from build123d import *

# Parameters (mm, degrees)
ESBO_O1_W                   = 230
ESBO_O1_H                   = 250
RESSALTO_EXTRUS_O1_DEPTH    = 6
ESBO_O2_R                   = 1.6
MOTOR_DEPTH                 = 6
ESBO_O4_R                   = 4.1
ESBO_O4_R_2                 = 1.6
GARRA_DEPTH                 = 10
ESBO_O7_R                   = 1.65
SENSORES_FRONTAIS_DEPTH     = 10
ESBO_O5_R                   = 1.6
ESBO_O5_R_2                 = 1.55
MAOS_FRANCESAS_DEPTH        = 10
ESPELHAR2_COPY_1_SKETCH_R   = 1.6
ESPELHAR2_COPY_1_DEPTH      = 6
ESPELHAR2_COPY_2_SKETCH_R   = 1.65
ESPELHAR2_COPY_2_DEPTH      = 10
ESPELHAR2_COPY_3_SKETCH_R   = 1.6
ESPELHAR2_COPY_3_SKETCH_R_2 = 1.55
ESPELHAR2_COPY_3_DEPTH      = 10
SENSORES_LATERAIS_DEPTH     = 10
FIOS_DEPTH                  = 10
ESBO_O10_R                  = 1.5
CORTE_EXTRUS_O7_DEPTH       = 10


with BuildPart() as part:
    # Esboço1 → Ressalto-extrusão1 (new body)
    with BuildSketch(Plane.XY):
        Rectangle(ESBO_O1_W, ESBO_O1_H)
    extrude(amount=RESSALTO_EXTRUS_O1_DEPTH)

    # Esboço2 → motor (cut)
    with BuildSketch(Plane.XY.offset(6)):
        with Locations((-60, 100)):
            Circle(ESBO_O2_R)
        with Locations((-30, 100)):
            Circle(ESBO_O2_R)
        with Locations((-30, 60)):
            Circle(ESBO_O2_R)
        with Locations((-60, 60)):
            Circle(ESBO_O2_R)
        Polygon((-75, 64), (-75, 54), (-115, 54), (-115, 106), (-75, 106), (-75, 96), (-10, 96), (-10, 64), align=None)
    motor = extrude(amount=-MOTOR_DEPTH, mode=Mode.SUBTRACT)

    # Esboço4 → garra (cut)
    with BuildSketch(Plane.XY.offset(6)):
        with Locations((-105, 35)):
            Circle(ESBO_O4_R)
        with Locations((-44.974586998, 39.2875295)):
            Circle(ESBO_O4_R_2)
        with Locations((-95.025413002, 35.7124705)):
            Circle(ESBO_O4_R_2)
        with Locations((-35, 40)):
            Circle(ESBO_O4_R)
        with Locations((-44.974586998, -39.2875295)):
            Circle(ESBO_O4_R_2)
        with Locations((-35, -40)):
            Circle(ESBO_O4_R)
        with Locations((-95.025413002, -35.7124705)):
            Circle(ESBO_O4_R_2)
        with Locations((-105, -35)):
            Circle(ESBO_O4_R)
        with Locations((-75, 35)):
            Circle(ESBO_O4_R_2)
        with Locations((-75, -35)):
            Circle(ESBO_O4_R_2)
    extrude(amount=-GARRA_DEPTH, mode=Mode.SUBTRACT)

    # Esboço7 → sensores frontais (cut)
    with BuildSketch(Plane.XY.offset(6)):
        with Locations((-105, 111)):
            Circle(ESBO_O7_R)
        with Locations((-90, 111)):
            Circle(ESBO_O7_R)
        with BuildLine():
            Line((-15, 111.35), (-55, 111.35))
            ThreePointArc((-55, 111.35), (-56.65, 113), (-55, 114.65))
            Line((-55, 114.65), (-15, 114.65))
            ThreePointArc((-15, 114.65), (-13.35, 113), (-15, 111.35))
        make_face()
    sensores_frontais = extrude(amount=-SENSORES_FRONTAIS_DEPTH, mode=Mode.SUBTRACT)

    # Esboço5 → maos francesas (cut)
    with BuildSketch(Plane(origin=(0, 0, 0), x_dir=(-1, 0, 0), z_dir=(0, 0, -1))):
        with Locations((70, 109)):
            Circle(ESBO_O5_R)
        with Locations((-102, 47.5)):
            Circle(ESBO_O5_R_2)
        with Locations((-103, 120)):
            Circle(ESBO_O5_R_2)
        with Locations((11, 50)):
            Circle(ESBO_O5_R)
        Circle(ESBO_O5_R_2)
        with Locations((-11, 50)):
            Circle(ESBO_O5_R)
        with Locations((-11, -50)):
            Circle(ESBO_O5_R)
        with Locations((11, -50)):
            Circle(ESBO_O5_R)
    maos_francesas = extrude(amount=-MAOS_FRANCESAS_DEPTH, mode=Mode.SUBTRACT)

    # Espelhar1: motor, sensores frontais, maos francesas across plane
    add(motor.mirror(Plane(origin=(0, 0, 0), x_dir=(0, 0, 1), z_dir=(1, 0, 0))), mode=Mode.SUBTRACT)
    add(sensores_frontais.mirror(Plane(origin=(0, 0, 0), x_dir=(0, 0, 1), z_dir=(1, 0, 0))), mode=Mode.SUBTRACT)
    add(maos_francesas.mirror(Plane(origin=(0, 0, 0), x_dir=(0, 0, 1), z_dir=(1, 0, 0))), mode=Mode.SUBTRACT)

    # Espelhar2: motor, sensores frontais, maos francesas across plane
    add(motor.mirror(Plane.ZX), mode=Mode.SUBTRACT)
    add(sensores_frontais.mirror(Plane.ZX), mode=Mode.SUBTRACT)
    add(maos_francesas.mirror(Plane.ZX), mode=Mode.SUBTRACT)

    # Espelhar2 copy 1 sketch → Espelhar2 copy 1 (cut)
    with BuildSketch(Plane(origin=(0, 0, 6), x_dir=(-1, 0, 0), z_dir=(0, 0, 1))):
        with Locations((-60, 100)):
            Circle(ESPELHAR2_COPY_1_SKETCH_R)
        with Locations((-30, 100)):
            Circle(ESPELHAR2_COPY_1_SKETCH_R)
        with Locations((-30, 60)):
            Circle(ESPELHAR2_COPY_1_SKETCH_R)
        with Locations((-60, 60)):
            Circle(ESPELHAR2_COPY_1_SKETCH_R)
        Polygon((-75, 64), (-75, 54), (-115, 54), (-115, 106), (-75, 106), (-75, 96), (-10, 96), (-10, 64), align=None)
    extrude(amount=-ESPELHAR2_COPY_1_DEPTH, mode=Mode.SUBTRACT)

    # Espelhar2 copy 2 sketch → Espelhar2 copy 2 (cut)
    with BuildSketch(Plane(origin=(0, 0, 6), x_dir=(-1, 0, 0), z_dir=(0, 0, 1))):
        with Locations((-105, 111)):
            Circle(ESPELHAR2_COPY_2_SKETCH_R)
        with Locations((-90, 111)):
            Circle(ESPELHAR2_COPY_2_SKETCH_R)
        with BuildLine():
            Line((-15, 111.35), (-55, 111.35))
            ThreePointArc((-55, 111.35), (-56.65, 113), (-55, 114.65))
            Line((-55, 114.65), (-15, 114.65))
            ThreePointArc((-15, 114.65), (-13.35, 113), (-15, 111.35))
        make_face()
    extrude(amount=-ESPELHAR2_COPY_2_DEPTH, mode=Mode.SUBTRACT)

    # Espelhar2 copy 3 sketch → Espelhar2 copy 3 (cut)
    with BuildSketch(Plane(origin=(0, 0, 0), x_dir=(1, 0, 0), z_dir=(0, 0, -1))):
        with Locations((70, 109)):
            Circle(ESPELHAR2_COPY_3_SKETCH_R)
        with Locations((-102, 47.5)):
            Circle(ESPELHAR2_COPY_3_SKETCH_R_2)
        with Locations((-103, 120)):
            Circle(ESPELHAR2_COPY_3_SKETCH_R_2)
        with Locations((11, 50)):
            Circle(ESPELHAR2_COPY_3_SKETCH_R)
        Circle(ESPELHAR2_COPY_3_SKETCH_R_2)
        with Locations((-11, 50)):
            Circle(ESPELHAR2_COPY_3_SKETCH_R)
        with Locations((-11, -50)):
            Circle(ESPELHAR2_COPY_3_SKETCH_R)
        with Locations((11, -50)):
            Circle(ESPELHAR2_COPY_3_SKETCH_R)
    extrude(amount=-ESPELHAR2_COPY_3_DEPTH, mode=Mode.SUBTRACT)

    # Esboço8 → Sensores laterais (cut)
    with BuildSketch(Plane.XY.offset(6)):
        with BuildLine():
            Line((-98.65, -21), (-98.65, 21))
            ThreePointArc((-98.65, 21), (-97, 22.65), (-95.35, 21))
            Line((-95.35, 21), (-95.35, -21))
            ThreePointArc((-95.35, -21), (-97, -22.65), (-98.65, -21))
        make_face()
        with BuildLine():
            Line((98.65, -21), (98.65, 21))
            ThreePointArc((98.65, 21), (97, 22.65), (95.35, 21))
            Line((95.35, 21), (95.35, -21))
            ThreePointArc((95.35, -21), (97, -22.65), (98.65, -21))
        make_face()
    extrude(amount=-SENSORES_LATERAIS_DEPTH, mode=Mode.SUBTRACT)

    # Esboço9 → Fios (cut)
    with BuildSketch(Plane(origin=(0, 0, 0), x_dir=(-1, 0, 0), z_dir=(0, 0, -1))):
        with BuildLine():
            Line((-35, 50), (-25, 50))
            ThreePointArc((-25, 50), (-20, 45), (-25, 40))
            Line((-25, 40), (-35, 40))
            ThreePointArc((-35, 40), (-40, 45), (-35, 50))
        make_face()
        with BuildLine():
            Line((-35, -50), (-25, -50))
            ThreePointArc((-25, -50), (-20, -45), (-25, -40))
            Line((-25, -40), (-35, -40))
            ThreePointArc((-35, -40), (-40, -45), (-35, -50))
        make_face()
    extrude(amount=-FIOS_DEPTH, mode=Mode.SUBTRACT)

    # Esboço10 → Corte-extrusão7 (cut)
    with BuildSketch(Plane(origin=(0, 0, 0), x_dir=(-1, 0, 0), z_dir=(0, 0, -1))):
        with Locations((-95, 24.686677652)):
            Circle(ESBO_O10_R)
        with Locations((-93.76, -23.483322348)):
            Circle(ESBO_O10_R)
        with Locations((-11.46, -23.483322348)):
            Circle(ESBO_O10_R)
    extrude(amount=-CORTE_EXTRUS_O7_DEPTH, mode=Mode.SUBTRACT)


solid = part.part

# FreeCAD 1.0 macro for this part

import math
import FreeCAD as App
import Part
import Sketcher
Q = App.Units.Quantity

doc = App.newDocument("Part")
body = doc.addObject("PartDesign::Body", "Body")

# Sketch on XY plane
sketch1 = body.newObject("Sketcher::SketchObject", "Sketch")
sketch1.AttachmentSupport = (doc.getObject("XY_Plane"), [""])
sketch1.MapMode = "FlatFace"
sketch1.addGeometry(Part.LineSegment(App.Vector(-115, 125, 0), App.Vector(-115, -125, 0)), False)
sketch1.addGeometry(Part.LineSegment(App.Vector(-115, -125, 0), App.Vector(115, -125, 0)), False)
sketch1.addGeometry(Part.LineSegment(App.Vector(115, -125, 0), App.Vector(115, 125, 0)), False)
sketch1.addGeometry(Part.LineSegment(App.Vector(115, 125, 0), App.Vector(-115, 125, 0)), False)
sketch1.addConstraint(Sketcher.Constraint("Coincident", 0, 2, 1, 1))
sketch1.addConstraint(Sketcher.Constraint("Coincident", 1, 2, 2, 1))
sketch1.addConstraint(Sketcher.Constraint("Coincident", 2, 2, 3, 1))
sketch1.addConstraint(Sketcher.Constraint("Coincident", 3, 2, 0, 1))
sketch1.addConstraint(Sketcher.Constraint("Vertical", 0))
sketch1.addConstraint(Sketcher.Constraint("Horizontal", 1))
sketch1.addConstraint(Sketcher.Constraint("Vertical", 2))
sketch1.addConstraint(Sketcher.Constraint("Horizontal", 3))
sketch1.addConstraint(Sketcher.Constraint("Symmetric", 0, 2, 2, 2, -1, 1))
sketch1.addConstraint(Sketcher.Constraint("DistanceX", 1, 1, 1, 2, Q("230 mm")))
sketch1.addConstraint(Sketcher.Constraint("DistanceY", 0, 2, 0, 1, Q("250 mm")))
pad1 = body.newObject("PartDesign::Pad", "Pad")
pad1.Profile = sketch1
pad1.Length = 6

# Sketch on XY plane
sketch2 = body.newObject("Sketcher::SketchObject", "Sketch001")
sketch2.AttachmentSupport = (doc.getObject("XY_Plane"), [""])
sketch2.MapMode = "FlatFace"
sketch2.AttachmentOffset = App.Placement(App.Vector(0, 0, 6), App.Rotation())
sketch2.addGeometry(Part.Circle(App.Vector(-60, 100, 0), App.Vector(0, 0, 1), 1.6), False)
sketch2.addGeometry(Part.Circle(App.Vector(-30, 100, 0), App.Vector(0, 0, 1), 1.6), False)
sketch2.addGeometry(Part.Circle(App.Vector(-30, 60, 0), App.Vector(0, 0, 1), 1.6), False)
sketch2.addGeometry(Part.Circle(App.Vector(-60, 60, 0), App.Vector(0, 0, 1), 1.6), False)
sketch2.addGeometry(Part.LineSegment(App.Vector(-75, 54, 0), App.Vector(-75, 64, 0)), False)
sketch2.addGeometry(Part.LineSegment(App.Vector(-75, 64, 0), App.Vector(-10, 64, 0)), False)
sketch2.addGeometry(Part.LineSegment(App.Vector(-10, 64, 0), App.Vector(-10, 96, 0)), False)
sketch2.addGeometry(Part.LineSegment(App.Vector(-10, 96, 0), App.Vector(-75, 96, 0)), False)
sketch2.addGeometry(Part.LineSegment(App.Vector(-75, 96, 0), App.Vector(-75, 106, 0)), False)
sketch2.addGeometry(Part.LineSegment(App.Vector(-75, 106, 0), App.Vector(-115, 106, 0)), False)
sketch2.addGeometry(Part.LineSegment(App.Vector(-115, 106, 0), App.Vector(-115, 54, 0)), False)
sketch2.addGeometry(Part.LineSegment(App.Vector(-115, 54, 0), App.Vector(-75, 54, 0)), False)
sketch2.addConstraint(Sketcher.Constraint("Coincident", 4, 2, 5, 1))
sketch2.addConstraint(Sketcher.Constraint("Coincident", 5, 2, 6, 1))
sketch2.addConstraint(Sketcher.Constraint("Coincident", 6, 2, 7, 1))
sketch2.addConstraint(Sketcher.Constraint("Coincident", 7, 2, 8, 1))
sketch2.addConstraint(Sketcher.Constraint("Coincident", 8, 2, 9, 1))
sketch2.addConstraint(Sketcher.Constraint("Coincident", 9, 2, 10, 1))
sketch2.addConstraint(Sketcher.Constraint("Coincident", 10, 2, 11, 1))
sketch2.addConstraint(Sketcher.Constraint("Coincident", 11, 2, 4, 1))
sketch2.addConstraint(Sketcher.Constraint("Vertical", 4))
sketch2.addConstraint(Sketcher.Constraint("Horizontal", 5))
sketch2.addConstraint(Sketcher.Constraint("Vertical", 6))
sketch2.addConstraint(Sketcher.Constraint("Horizontal", 7))
sketch2.addConstraint(Sketcher.Constraint("Vertical", 8))
sketch2.addConstraint(Sketcher.Constraint("Horizontal", 9))
sketch2.addConstraint(Sketcher.Constraint("Vertical", 10))
sketch2.addConstraint(Sketcher.Constraint("Horizontal", 11))
sketch2.addConstraint(Sketcher.Constraint("Equal", 0, 1))
sketch2.addConstraint(Sketcher.Constraint("Equal", 1, 2))
sketch2.addConstraint(Sketcher.Constraint("Equal", 2, 3))
sketch2.addConstraint(Sketcher.Constraint("Horizontal", 0, 3, 1, 3))
sketch2.addConstraint(Sketcher.Constraint("Horizontal", 2, 3, 3, 3))
sketch2.addConstraint(Sketcher.Constraint("Vertical", 1, 3, 2, 3))
sketch2.addConstraint(Sketcher.Constraint("Vertical", 0, 3, 3, 3))
sketch2.addConstraint(Sketcher.Constraint("Vertical", 4, 2, 7, 2))
sketch2.addConstraint(Sketcher.Constraint("Equal", 4, 8))
sketch2.addConstraint(Sketcher.Constraint("Diameter", 0, Q("3.2 mm")))
sketch2.addConstraint(Sketcher.Constraint("DistanceX", 5, 1, 5, 2, Q("65 mm")))
sketch2.addConstraint(Sketcher.Constraint("DistanceX", 9, 2, 9, 1, Q("40 mm")))
sketch2.addConstraint(Sketcher.Constraint("DistanceY", 4, 1, 4, 2, Q("10 mm")))
sketch2.addConstraint(Sketcher.Constraint("DistanceY", 6, 1, 6, 2, Q("32 mm")))
sketch2.addConstraint(Sketcher.Constraint("DistanceX", 0, 3, -1, 1, Q("60 mm")))
sketch2.addConstraint(Sketcher.Constraint("DistanceY", -1, 1, 0, 3, Q("100 mm")))
sketch2.addConstraint(Sketcher.Constraint("DistanceX", 1, 3, -1, 1, Q("30 mm")))
sketch2.addConstraint(Sketcher.Constraint("DistanceY", -1, 1, 2, 3, Q("60 mm")))
sketch2.addConstraint(Sketcher.Constraint("DistanceX", 4, 2, -1, 1, Q("75 mm")))
sketch2.addConstraint(Sketcher.Constraint("DistanceY", -1, 1, 4, 2, Q("64 mm")))
pocket1 = body.newObject("PartDesign::Pocket", "Pocket")
pocket1.Profile = sketch2
pocket1.Length = 6

# Sketch on XY plane
sketch3 = body.newObject("Sketcher::SketchObject", "Sketch002")
sketch3.AttachmentSupport = (doc.getObject("XY_Plane"), [""])
sketch3.MapMode = "FlatFace"
sketch3.AttachmentOffset = App.Placement(App.Vector(0, 0, 6), App.Rotation())
sketch3.addGeometry(Part.Circle(App.Vector(-105, 35, 0), App.Vector(0, 0, 1), 4.1), False)
sketch3.addGeometry(Part.Circle(App.Vector(-45, 39.3, 0), App.Vector(0, 0, 1), 1.6), False)
sketch3.addGeometry(Part.Circle(App.Vector(-95, 35.7, 0), App.Vector(0, 0, 1), 1.6), False)
sketch3.addGeometry(Part.Circle(App.Vector(-35, 40, 0), App.Vector(0, 0, 1), 4.1), False)
sketch3.addGeometry(Part.Circle(App.Vector(-45, -39.3, 0), App.Vector(0, 0, 1), 1.6), False)
sketch3.addGeometry(Part.Circle(App.Vector(-35, -40, 0), App.Vector(0, 0, 1), 4.1), False)
sketch3.addGeometry(Part.Circle(App.Vector(-95, -35.7, 0), App.Vector(0, 0, 1), 1.6), False)
sketch3.addGeometry(Part.Circle(App.Vector(-105, -35, 0), App.Vector(0, 0, 1), 4.1), False)
sketch3.addGeometry(Part.Circle(App.Vector(-75, 35, 0), App.Vector(0, 0, 1), 1.6), False)
sketch3.addGeometry(Part.Circle(App.Vector(-75, -35, 0), App.Vector(0, 0, 1), 1.6), False)
sketch3.addConstraint(Sketcher.Constraint("Equal", 1, 2))
sketch3.addConstraint(Sketcher.Constraint("Equal", 0, 3))
sketch3.addConstraint(Sketcher.Constraint("Equal", 2, 4))
sketch3.addConstraint(Sketcher.Constraint("Equal", 3, 5))
sketch3.addConstraint(Sketcher.Constraint("Equal", 4, 6))
sketch3.addConstraint(Sketcher.Constraint("Equal", 5, 7))
sketch3.addConstraint(Sketcher.Constraint("Equal", 6, 8))
sketch3.addConstraint(Sketcher.Constraint("Equal", 8, 9))
sketch3.addConstraint(Sketcher.Constraint("Symmetric", 1, 3, 4, 3, -1))
sketch3.addConstraint(Sketcher.Constraint("Symmetric", 3, 3, 5, 3, -1))
sketch3.addConstraint(Sketcher.Constraint("Symmetric", 2, 3, 6, 3, -1))
sketch3.addConstraint(Sketcher.Constraint("Symmetric", 0, 3, 7, 3, -1))
sketch3.addConstraint(Sketcher.Constraint("Symmetric", 8, 3, 9, 3, -1))
sketch3.addConstraint(Sketcher.Constraint("Horizontal", 0, 3, 8, 3))
sketch3.addConstraint(Sketcher.Constraint("Diameter", 0, Q("8.2 mm")))
sketch3.addConstraint(Sketcher.Constraint("Diameter", 1, Q("3.2 mm")))
sketch3.addConstraint(Sketcher.Constraint("DistanceX", 0, 3, -1, 1, Q("105 mm")))
sketch3.addConstraint(Sketcher.Constraint("DistanceY", -1, 1, 0, 3, Q("35 mm")))
sketch3.addConstraint(Sketcher.Constraint("DistanceX", 3, 3, -1, 1, Q("35 mm")))
sketch3.addConstraint(Sketcher.Constraint("DistanceY", -1, 1, 3, 3, Q("40 mm")))
sketch3.addConstraint(Sketcher.Constraint("DistanceX", 8, 3, -1, 1, Q("75 mm")))
sketch3.addConstraint(Sketcher.Constraint("DistanceY", 4, 3, 2, 3, Q("75 mm")))
sketch3.addConstraint(Sketcher.Constraint("DistanceY", -1, 1, 1, 3, Q("39.287529 mm")))
sketch3.addConstraint(Sketcher.Constraint("DistanceX", 1, 3, -1, 1, Q("44.974587 mm")))
sketch3.addConstraint(Sketcher.Constraint("DistanceX", 2, 3, -1, 1, Q("95.025413 mm")))
pocket2 = body.newObject("PartDesign::Pocket", "Pocket001")
pocket2.Profile = sketch3
pocket2.Length = 10

# Sketch on XY plane
sketch4 = body.newObject("Sketcher::SketchObject", "Sketch003")
sketch4.AttachmentSupport = (doc.getObject("XY_Plane"), [""])
sketch4.MapMode = "FlatFace"
sketch4.AttachmentOffset = App.Placement(App.Vector(0, 0, 6), App.Rotation())
sketch4.addGeometry(Part.Circle(App.Vector(-105, 111, 0), App.Vector(0, 0, 1), 1.6), False)
sketch4.addGeometry(Part.Circle(App.Vector(-90, 111, 0), App.Vector(0, 0, 1), 1.6), False)
sketch4.addGeometry(Part.LineSegment(App.Vector(-55, 111.3, 0), App.Vector(-15, 111.3, 0)), False)
sketch4.addGeometry(Part.ArcOfCircle(Part.Circle(App.Vector(-15, 113, 0), App.Vector(0, 0, 1), 1.6), math.radians(-90), math.radians(90)), False)
sketch4.addGeometry(Part.LineSegment(App.Vector(-15, 114.7, 0), App.Vector(-55, 114.7, 0)), False)
sketch4.addGeometry(Part.ArcOfCircle(Part.Circle(App.Vector(-55, 113, 0), App.Vector(0, 0, 1), 1.6), math.radians(90), math.radians(270)), False)
sketch4.addConstraint(Sketcher.Constraint("Tangent", 2, 2, 3, 1))
sketch4.addConstraint(Sketcher.Constraint("Tangent", 3, 2, 4, 1))
sketch4.addConstraint(Sketcher.Constraint("Tangent", 4, 2, 5, 1))
sketch4.addConstraint(Sketcher.Constraint("Tangent", 5, 2, 2, 1))
sketch4.addConstraint(Sketcher.Constraint("Horizontal", 2))
sketch4.addConstraint(Sketcher.Constraint("Horizontal", 4))
sketch4.addConstraint(Sketcher.Constraint("Equal", 0, 1))
sketch4.addConstraint(Sketcher.Constraint("Equal", 1, 3))
sketch4.addConstraint(Sketcher.Constraint("Horizontal", 0, 3, 1, 3))
sketch4.addConstraint(Sketcher.Constraint("Diameter", 0, Q("3.3 mm")))
sketch4.addConstraint(Sketcher.Constraint("DistanceX", 2, 1, 2, 2, Q("40 mm")))
sketch4.addConstraint(Sketcher.Constraint("DistanceX", 0, 3, -1, 1, Q("105 mm")))
sketch4.addConstraint(Sketcher.Constraint("DistanceY", -1, 1, 0, 3, Q("111 mm")))
sketch4.addConstraint(Sketcher.Constraint("DistanceX", 1, 3, -1, 1, Q("90 mm")))
sketch4.addConstraint(Sketcher.Constraint("DistanceX", 3, 3, -1, 1, Q("15 mm")))
sketch4.addConstraint(Sketcher.Constraint("DistanceY", -1, 1, 3, 3, Q("113 mm")))
pocket3 = body.newObject("PartDesign::Pocket", "Pocket002")
pocket3.Profile = sketch4
pocket3.Length = 10

# Sketch on XY plane
sketch5 = body.newObject("Sketcher::SketchObject", "Sketch004")
sketch5.AttachmentSupport = (doc.getObject("XY_Plane"), [""])
sketch5.MapMode = "FlatFace"
sketch5.addGeometry(Part.Circle(App.Vector(-70, 109, 0), App.Vector(0, 0, 1), 1.6), False)
sketch5.addGeometry(Part.Circle(App.Vector(102, 47.5, 0), App.Vector(0, 0, 1), 1.6), False)
sketch5.addGeometry(Part.Circle(App.Vector(103, 120, 0), App.Vector(0, 0, 1), 1.6), False)
sketch5.addGeometry(Part.Circle(App.Vector(-11, 50, 0), App.Vector(0, 0, 1), 1.6), False)
sketch5.addGeometry(Part.Circle(App.Vector(0, 0, 0), App.Vector(0, 0, 1), 1.6), False)
sketch5.addGeometry(Part.Circle(App.Vector(11, 50, 0), App.Vector(0, 0, 1), 1.6), False)
sketch5.addGeometry(Part.Circle(App.Vector(11, -50, 0), App.Vector(0, 0, 1), 1.6), False)
sketch5.addGeometry(Part.Circle(App.Vector(-11, -50, 0), App.Vector(0, 0, 1), 1.6), False)
sketch5.addConstraint(Sketcher.Constraint("Coincident", 4, 3, -1, 1))
sketch5.addConstraint(Sketcher.Constraint("Equal", 1, 2))
sketch5.addConstraint(Sketcher.Constraint("Equal", 0, 3))
sketch5.addConstraint(Sketcher.Constraint("Equal", 2, 4))
sketch5.addConstraint(Sketcher.Constraint("Equal", 3, 5))
sketch5.addConstraint(Sketcher.Constraint("Equal", 5, 6))
sketch5.addConstraint(Sketcher.Constraint("Equal", 6, 7))
sketch5.addConstraint(Sketcher.Constraint("Symmetric", 3, 3, 6, 3, -1, 1))
sketch5.addConstraint(Sketcher.Constraint("Symmetric", 5, 3, 7, 3, -1, 1))
sketch5.addConstraint(Sketcher.Constraint("Symmetric", 3, 3, 5, 3, -2))
sketch5.addConstraint(Sketcher.Constraint("Diameter", 0, Q("3.2 mm")))
sketch5.addConstraint(Sketcher.Constraint("Diameter", 1, Q("3.1 mm")))
sketch5.addConstraint(Sketcher.Constraint("DistanceX", 0, 3, -1, 1, Q("70 mm")))
sketch5.addConstraint(Sketcher.Constraint("DistanceY", -1, 1, 0, 3, Q("109 mm")))
sketch5.addConstraint(Sketcher.Constraint("DistanceX", -1, 1, 1, 3, Q("102 mm")))
sketch5.addConstraint(Sketcher.Constraint("DistanceX", -1, 1, 2, 3, Q("103 mm")))
sketch5.addConstraint(Sketcher.Constraint("DistanceY", -1, 1, 2, 3, Q("120 mm")))
sketch5.addConstraint(Sketcher.Constraint("DistanceX", 3, 3, -1, 1, Q("11 mm")))
sketch5.addConstraint(Sketcher.Constraint("DistanceY", -1, 1, 3, 3, Q("50 mm")))
sketch5.addConstraint(Sketcher.Constraint("DistanceY", -1, 1, 1, 3, Q("47.5 mm")))
pocket4 = body.newObject("PartDesign::Pocket", "Pocket003")
pocket4.Profile = sketch5
pocket4.Length = 10
pocket4.Reversed = True
doc.recompute()

mirrored = body.newObject("PartDesign::Mirrored", "Mirrored")
mirrored.Originals = [pocket1, pocket3, pocket4]
mirrored.MirrorPlane = (doc.getObject("YZ_Plane"), [""])
body.Tip = mirrored
doc.recompute()

mirrored2 = body.newObject("PartDesign::Mirrored", "Mirrored001")
mirrored2.Originals = [pocket1, pocket3, pocket4]
mirrored2.MirrorPlane = (doc.getObject("XZ_Plane"), [""])
body.Tip = mirrored2

# Sketch on XY plane
sketch6 = body.newObject("Sketcher::SketchObject", "Sketch005")
sketch6.AttachmentSupport = (doc.getObject("XY_Plane"), [""])
sketch6.MapMode = "FlatFace"
sketch6.AttachmentOffset = App.Placement(App.Vector(0, 0, 6), App.Rotation())
sketch6.addGeometry(Part.Circle(App.Vector(60, -100, 0), App.Vector(0, 0, 1), 1.6), False)
sketch6.addGeometry(Part.Circle(App.Vector(30, -100, 0), App.Vector(0, 0, 1), 1.6), False)
sketch6.addGeometry(Part.Circle(App.Vector(30, -60, 0), App.Vector(0, 0, 1), 1.6), False)
sketch6.addGeometry(Part.Circle(App.Vector(60, -60, 0), App.Vector(0, 0, 1), 1.6), False)
sketch6.addGeometry(Part.LineSegment(App.Vector(75, -54, 0), App.Vector(75, -64, 0)), False)
sketch6.addGeometry(Part.LineSegment(App.Vector(75, -64, 0), App.Vector(10, -64, 0)), False)
sketch6.addGeometry(Part.LineSegment(App.Vector(10, -64, 0), App.Vector(10, -96, 0)), False)
sketch6.addGeometry(Part.LineSegment(App.Vector(10, -96, 0), App.Vector(75, -96, 0)), False)
sketch6.addGeometry(Part.LineSegment(App.Vector(75, -96, 0), App.Vector(75, -106, 0)), False)
sketch6.addGeometry(Part.LineSegment(App.Vector(75, -106, 0), App.Vector(115, -106, 0)), False)
sketch6.addGeometry(Part.LineSegment(App.Vector(115, -106, 0), App.Vector(115, -54, 0)), False)
sketch6.addGeometry(Part.LineSegment(App.Vector(115, -54, 0), App.Vector(75, -54, 0)), False)
sketch6.addConstraint(Sketcher.Constraint("Coincident", 4, 2, 5, 1))
sketch6.addConstraint(Sketcher.Constraint("Coincident", 5, 2, 6, 1))
sketch6.addConstraint(Sketcher.Constraint("Coincident", 6, 2, 7, 1))
sketch6.addConstraint(Sketcher.Constraint("Coincident", 7, 2, 8, 1))
sketch6.addConstraint(Sketcher.Constraint("Coincident", 8, 2, 9, 1))
sketch6.addConstraint(Sketcher.Constraint("Coincident", 9, 2, 10, 1))
sketch6.addConstraint(Sketcher.Constraint("Coincident", 10, 2, 11, 1))
sketch6.addConstraint(Sketcher.Constraint("Coincident", 11, 2, 4, 1))
sketch6.addConstraint(Sketcher.Constraint("Vertical", 4))
sketch6.addConstraint(Sketcher.Constraint("Horizontal", 5))
sketch6.addConstraint(Sketcher.Constraint("Vertical", 6))
sketch6.addConstraint(Sketcher.Constraint("Horizontal", 7))
sketch6.addConstraint(Sketcher.Constraint("Vertical", 8))
sketch6.addConstraint(Sketcher.Constraint("Horizontal", 9))
sketch6.addConstraint(Sketcher.Constraint("Vertical", 10))
sketch6.addConstraint(Sketcher.Constraint("Horizontal", 11))
sketch6.addConstraint(Sketcher.Constraint("Equal", 0, 1))
sketch6.addConstraint(Sketcher.Constraint("Equal", 1, 2))
sketch6.addConstraint(Sketcher.Constraint("Equal", 2, 3))
sketch6.addConstraint(Sketcher.Constraint("Horizontal", 0, 3, 1, 3))
sketch6.addConstraint(Sketcher.Constraint("Horizontal", 2, 3, 3, 3))
sketch6.addConstraint(Sketcher.Constraint("Vertical", 1, 3, 2, 3))
sketch6.addConstraint(Sketcher.Constraint("Vertical", 0, 3, 3, 3))
sketch6.addConstraint(Sketcher.Constraint("Vertical", 4, 2, 7, 2))
sketch6.addConstraint(Sketcher.Constraint("Equal", 4, 8))
sketch6.addConstraint(Sketcher.Constraint("Diameter", 0, Q("3.2 mm")))
sketch6.addConstraint(Sketcher.Constraint("DistanceX", 5, 2, 5, 1, Q("65 mm")))
sketch6.addConstraint(Sketcher.Constraint("DistanceX", 9, 1, 9, 2, Q("40 mm")))
sketch6.addConstraint(Sketcher.Constraint("DistanceY", 4, 2, 4, 1, Q("10 mm")))
sketch6.addConstraint(Sketcher.Constraint("DistanceY", 6, 2, 6, 1, Q("32 mm")))
sketch6.addConstraint(Sketcher.Constraint("DistanceX", -1, 1, 0, 3, Q("60 mm")))
sketch6.addConstraint(Sketcher.Constraint("DistanceY", 0, 3, -1, 1, Q("100 mm")))
sketch6.addConstraint(Sketcher.Constraint("DistanceX", -1, 1, 1, 3, Q("30 mm")))
sketch6.addConstraint(Sketcher.Constraint("DistanceY", 2, 3, -1, 1, Q("60 mm")))
sketch6.addConstraint(Sketcher.Constraint("DistanceX", -1, 1, 4, 2, Q("75 mm")))
sketch6.addConstraint(Sketcher.Constraint("DistanceY", 4, 2, -1, 1, Q("64 mm")))
pocket5 = body.newObject("PartDesign::Pocket", "Pocket004")
pocket5.Profile = sketch6
pocket5.Length = 6

# Sketch on XY plane
sketch7 = body.newObject("Sketcher::SketchObject", "Sketch006")
sketch7.AttachmentSupport = (doc.getObject("XY_Plane"), [""])
sketch7.MapMode = "FlatFace"
sketch7.AttachmentOffset = App.Placement(App.Vector(0, 0, 6), App.Rotation())
sketch7.addGeometry(Part.Circle(App.Vector(105, -111, 0), App.Vector(0, 0, 1), 1.65), False)
sketch7.addGeometry(Part.Circle(App.Vector(90, -111, 0), App.Vector(0, 0, 1), 1.65), False)
sketch7.addGeometry(Part.LineSegment(App.Vector(55, -111.35, 0), App.Vector(15, -111.35, 0)), False)
sketch7.addGeometry(Part.ArcOfCircle(Part.Circle(App.Vector(15, -113, 0), App.Vector(0, 0, 1), 1.65), math.radians(90), math.radians(270)), False)
sketch7.addGeometry(Part.LineSegment(App.Vector(15, -114.65, 0), App.Vector(55, -114.65, 0)), False)
sketch7.addGeometry(Part.ArcOfCircle(Part.Circle(App.Vector(55, -113, 0), App.Vector(0, 0, 1), 1.65), math.radians(-90), math.radians(90)), False)
sketch7.addConstraint(Sketcher.Constraint("Tangent", 2, 2, 3, 1))
sketch7.addConstraint(Sketcher.Constraint("Tangent", 3, 2, 4, 1))
sketch7.addConstraint(Sketcher.Constraint("Tangent", 4, 2, 5, 1))
sketch7.addConstraint(Sketcher.Constraint("Tangent", 5, 2, 2, 1))
sketch7.addConstraint(Sketcher.Constraint("Horizontal", 2))
sketch7.addConstraint(Sketcher.Constraint("Horizontal", 4))
sketch7.addConstraint(Sketcher.Constraint("Equal", 0, 1))
sketch7.addConstraint(Sketcher.Constraint("Equal", 1, 3))
sketch7.addConstraint(Sketcher.Constraint("Horizontal", 0, 3, 1, 3))
sketch7.addConstraint(Sketcher.Constraint("Diameter", 0, Q("3.3 mm")))
sketch7.addConstraint(Sketcher.Constraint("DistanceX", 2, 2, 2, 1, Q("40 mm")))
sketch7.addConstraint(Sketcher.Constraint("DistanceX", -1, 1, 0, 3, Q("105 mm")))
sketch7.addConstraint(Sketcher.Constraint("DistanceY", 0, 3, -1, 1, Q("111 mm")))
sketch7.addConstraint(Sketcher.Constraint("DistanceX", -1, 1, 1, 3, Q("90 mm")))
sketch7.addConstraint(Sketcher.Constraint("DistanceX", -1, 1, 3, 3, Q("15 mm")))
sketch7.addConstraint(Sketcher.Constraint("DistanceY", 3, 3, -1, 1, Q("113 mm")))
pocket6 = body.newObject("PartDesign::Pocket", "Pocket005")
pocket6.Profile = sketch7
pocket6.Length = 10

# Sketch on XY plane
sketch8 = body.newObject("Sketcher::SketchObject", "Sketch007")
sketch8.AttachmentSupport = (doc.getObject("XY_Plane"), [""])
sketch8.MapMode = "FlatFace"
sketch8.addGeometry(Part.Circle(App.Vector(70, -109, 0), App.Vector(0, 0, 1), 1.6), False)
sketch8.addGeometry(Part.Circle(App.Vector(-102, -47.5, 0), App.Vector(0, 0, 1), 1.6), False)
sketch8.addGeometry(Part.Circle(App.Vector(-103, -120, 0), App.Vector(0, 0, 1), 1.6), False)
sketch8.addGeometry(Part.Circle(App.Vector(11, -50, 0), App.Vector(0, 0, 1), 1.6), False)
sketch8.addGeometry(Part.Circle(App.Vector(0, 0, 0), App.Vector(0, 0, 1), 1.6), False)
sketch8.addGeometry(Part.Circle(App.Vector(-11, -50, 0), App.Vector(0, 0, 1), 1.6), False)
sketch8.addGeometry(Part.Circle(App.Vector(-11, 50, 0), App.Vector(0, 0, 1), 1.6), False)
sketch8.addGeometry(Part.Circle(App.Vector(11, 50, 0), App.Vector(0, 0, 1), 1.6), False)
sketch8.addConstraint(Sketcher.Constraint("Coincident", 4, 3, -1, 1))
sketch8.addConstraint(Sketcher.Constraint("Equal", 1, 2))
sketch8.addConstraint(Sketcher.Constraint("Equal", 0, 3))
sketch8.addConstraint(Sketcher.Constraint("Equal", 2, 4))
sketch8.addConstraint(Sketcher.Constraint("Equal", 3, 5))
sketch8.addConstraint(Sketcher.Constraint("Equal", 5, 6))
sketch8.addConstraint(Sketcher.Constraint("Equal", 6, 7))
sketch8.addConstraint(Sketcher.Constraint("Symmetric", 3, 3, 6, 3, -1, 1))
sketch8.addConstraint(Sketcher.Constraint("Symmetric", 5, 3, 7, 3, -1, 1))
sketch8.addConstraint(Sketcher.Constraint("Symmetric", 3, 3, 5, 3, -2))
sketch8.addConstraint(Sketcher.Constraint("Diameter", 0, Q("3.2 mm")))
sketch8.addConstraint(Sketcher.Constraint("Diameter", 1, Q("3.1 mm")))
sketch8.addConstraint(Sketcher.Constraint("DistanceX", -1, 1, 0, 3, Q("70 mm")))
sketch8.addConstraint(Sketcher.Constraint("DistanceY", 0, 3, -1, 1, Q("109 mm")))
sketch8.addConstraint(Sketcher.Constraint("DistanceX", 1, 3, -1, 1, Q("102 mm")))
sketch8.addConstraint(Sketcher.Constraint("DistanceX", 2, 3, -1, 1, Q("103 mm")))
sketch8.addConstraint(Sketcher.Constraint("DistanceY", 2, 3, -1, 1, Q("120 mm")))
sketch8.addConstraint(Sketcher.Constraint("DistanceX", -1, 1, 3, 3, Q("11 mm")))
sketch8.addConstraint(Sketcher.Constraint("DistanceY", 3, 3, -1, 1, Q("50 mm")))
sketch8.addConstraint(Sketcher.Constraint("DistanceY", 1, 3, -1, 1, Q("47.5 mm")))
pocket7 = body.newObject("PartDesign::Pocket", "Pocket006")
pocket7.Profile = sketch8
pocket7.Length = 10
pocket7.Reversed = True

# Sketch on XY plane
sketch9 = body.newObject("Sketcher::SketchObject", "Sketch008")
sketch9.AttachmentSupport = (doc.getObject("XY_Plane"), [""])
sketch9.MapMode = "FlatFace"
sketch9.AttachmentOffset = App.Placement(App.Vector(0, 0, 6), App.Rotation())
sketch9.addGeometry(Part.LineSegment(App.Vector(-98.7, 21, 0), App.Vector(-98.7, -21, 0)), False)
sketch9.addGeometry(Part.ArcOfCircle(Part.Circle(App.Vector(-97, -21, 0), App.Vector(0, 0, 1), 1.6), math.radians(180), math.radians(360)), False)
sketch9.addGeometry(Part.LineSegment(App.Vector(-95.3, -21, 0), App.Vector(-95.3, 21, 0)), False)
sketch9.addGeometry(Part.ArcOfCircle(Part.Circle(App.Vector(-97, 21, 0), App.Vector(0, 0, 1), 1.6), math.radians(0), math.radians(180)), False)
sketch9.addGeometry(Part.LineSegment(App.Vector(98.7, -21, 0), App.Vector(98.7, 21, 0)), False)
sketch9.addGeometry(Part.ArcOfCircle(Part.Circle(App.Vector(97, 21, 0), App.Vector(0, 0, 1), 1.6), math.radians(0), math.radians(180)), False)
sketch9.addGeometry(Part.LineSegment(App.Vector(95.3, 21, 0), App.Vector(95.3, -21, 0)), False)
sketch9.addGeometry(Part.ArcOfCircle(Part.Circle(App.Vector(97, -21, 0), App.Vector(0, 0, 1), 1.6), math.radians(180), math.radians(360)), False)
sketch9.addConstraint(Sketcher.Constraint("Tangent", 0, 2, 1, 1))
sketch9.addConstraint(Sketcher.Constraint("Tangent", 1, 2, 2, 1))
sketch9.addConstraint(Sketcher.Constraint("Tangent", 2, 2, 3, 1))
sketch9.addConstraint(Sketcher.Constraint("Tangent", 3, 2, 0, 1))
sketch9.addConstraint(Sketcher.Constraint("Tangent", 4, 2, 5, 1))
sketch9.addConstraint(Sketcher.Constraint("Tangent", 5, 2, 6, 1))
sketch9.addConstraint(Sketcher.Constraint("Tangent", 6, 2, 7, 1))
sketch9.addConstraint(Sketcher.Constraint("Tangent", 7, 2, 4, 1))
sketch9.addConstraint(Sketcher.Constraint("Vertical", 0))
sketch9.addConstraint(Sketcher.Constraint("Vertical", 2))
sketch9.addConstraint(Sketcher.Constraint("Vertical", 4))
sketch9.addConstraint(Sketcher.Constraint("Vertical", 6))
sketch9.addConstraint(Sketcher.Constraint("Equal", 3, 5))
sketch9.addConstraint(Sketcher.Constraint("Symmetric", 1, 3, 5, 3, -1, 1))
sketch9.addConstraint(Sketcher.Constraint("Horizontal", 3, 3, 5, 3))
sketch9.addConstraint(Sketcher.Constraint("Horizontal", 1, 3, 7, 3))
sketch9.addConstraint(Sketcher.Constraint("DistanceY", 0, 2, 0, 1, Q("42 mm")))
sketch9.addConstraint(Sketcher.Constraint("Radius", 1, Q("1.65 mm")))
sketch9.addConstraint(Sketcher.Constraint("DistanceX", 1, 3, -1, 1, Q("97 mm")))
pocket8 = body.newObject("PartDesign::Pocket", "Pocket007")
pocket8.Profile = sketch9
pocket8.Length = 10

# Sketch on XY plane
sketch10 = body.newObject("Sketcher::SketchObject", "Sketch009")
sketch10.AttachmentSupport = (doc.getObject("XY_Plane"), [""])
sketch10.MapMode = "FlatFace"
sketch10.addGeometry(Part.LineSegment(App.Vector(25, 50, 0), App.Vector(35, 50, 0)), False)
sketch10.addGeometry(Part.ArcOfCircle(Part.Circle(App.Vector(35, 45, 0), App.Vector(0, 0, 1), 5), math.radians(-90), math.radians(90)), False)
sketch10.addGeometry(Part.LineSegment(App.Vector(35, 40, 0), App.Vector(25, 40, 0)), False)
sketch10.addGeometry(Part.ArcOfCircle(Part.Circle(App.Vector(25, 45, 0), App.Vector(0, 0, 1), 5), math.radians(90), math.radians(270)), False)
sketch10.addGeometry(Part.LineSegment(App.Vector(35, -50, 0), App.Vector(25, -50, 0)), False)
sketch10.addGeometry(Part.ArcOfCircle(Part.Circle(App.Vector(25, -45, 0), App.Vector(0, 0, 1), 5), math.radians(90), math.radians(270)), False)
sketch10.addGeometry(Part.LineSegment(App.Vector(25, -40, 0), App.Vector(35, -40, 0)), False)
sketch10.addGeometry(Part.ArcOfCircle(Part.Circle(App.Vector(35, -45, 0), App.Vector(0, 0, 1), 5), math.radians(-90), math.radians(90)), False)
sketch10.addConstraint(Sketcher.Constraint("Tangent", 0, 2, 1, 2))
sketch10.addConstraint(Sketcher.Constraint("Tangent", 1, 1, 2, 1))
sketch10.addConstraint(Sketcher.Constraint("Tangent", 2, 2, 3, 2))
sketch10.addConstraint(Sketcher.Constraint("Tangent", 3, 1, 0, 1))
sketch10.addConstraint(Sketcher.Constraint("Tangent", 4, 2, 5, 2))
sketch10.addConstraint(Sketcher.Constraint("Tangent", 5, 1, 6, 1))
sketch10.addConstraint(Sketcher.Constraint("Tangent", 6, 2, 7, 2))
sketch10.addConstraint(Sketcher.Constraint("Tangent", 7, 1, 4, 1))
sketch10.addConstraint(Sketcher.Constraint("Horizontal", 0))
sketch10.addConstraint(Sketcher.Constraint("Horizontal", 2))
sketch10.addConstraint(Sketcher.Constraint("Horizontal", 4))
sketch10.addConstraint(Sketcher.Constraint("Horizontal", 6))
sketch10.addConstraint(Sketcher.Constraint("Equal", 3, 5))
sketch10.addConstraint(Sketcher.Constraint("Symmetric", 3, 3, 5, 3, -1))
sketch10.addConstraint(Sketcher.Constraint("Vertical", 1, 3, 7, 3))
sketch10.addConstraint(Sketcher.Constraint("Radius", 1, Q("5 mm")))
sketch10.addConstraint(Sketcher.Constraint("DistanceX", 0, 1, 0, 2, Q("10 mm")))
sketch10.addConstraint(Sketcher.Constraint("DistanceX", -1, 1, 1, 3, Q("35 mm")))
sketch10.addConstraint(Sketcher.Constraint("DistanceY", -1, 1, 1, 3, Q("45 mm")))
pocket9 = body.newObject("PartDesign::Pocket", "Pocket008")
pocket9.Profile = sketch10
pocket9.Length = 10
pocket9.Reversed = True

# Sketch on XY plane
sketch11 = body.newObject("Sketcher::SketchObject", "Sketch010")
sketch11.AttachmentSupport = (doc.getObject("XY_Plane"), [""])
sketch11.MapMode = "FlatFace"
sketch11.addGeometry(Part.Circle(App.Vector(95, 24.7, 0), App.Vector(0, 0, 1), 1.5), False)
sketch11.addGeometry(Part.Circle(App.Vector(93.8, -23.5, 0), App.Vector(0, 0, 1), 1.5), False)
sketch11.addGeometry(Part.Circle(App.Vector(11.5, -23.5, 0), App.Vector(0, 0, 1), 1.5), False)
sketch11.addConstraint(Sketcher.Constraint("Equal", 0, 1))
sketch11.addConstraint(Sketcher.Constraint("Equal", 1, 2))
sketch11.addConstraint(Sketcher.Constraint("Horizontal", 1, 3, 2, 3))
sketch11.addConstraint(Sketcher.Constraint("Diameter", 0, Q("3 mm")))
sketch11.addConstraint(Sketcher.Constraint("DistanceX", -1, 1, 0, 3, Q("95 mm")))
sketch11.addConstraint(Sketcher.Constraint("DistanceX", 2, 3, 1, 3, Q("82.3 mm")))
sketch11.addConstraint(Sketcher.Constraint("DistanceX", -1, 1, 1, 3, Q("93.76 mm")))
sketch11.addConstraint(Sketcher.Constraint("DistanceY", 1, 3, 0, 3, Q("48.17 mm")))
sketch11.addConstraint(Sketcher.Constraint("DistanceY", -1, 1, 0, 3, Q("24.686678 mm")))
pocket10 = body.newObject("PartDesign::Pocket", "Pocket009")
pocket10.Profile = sketch11
pocket10.Length = 10
pocket10.Reversed = True

doc.recompute()
